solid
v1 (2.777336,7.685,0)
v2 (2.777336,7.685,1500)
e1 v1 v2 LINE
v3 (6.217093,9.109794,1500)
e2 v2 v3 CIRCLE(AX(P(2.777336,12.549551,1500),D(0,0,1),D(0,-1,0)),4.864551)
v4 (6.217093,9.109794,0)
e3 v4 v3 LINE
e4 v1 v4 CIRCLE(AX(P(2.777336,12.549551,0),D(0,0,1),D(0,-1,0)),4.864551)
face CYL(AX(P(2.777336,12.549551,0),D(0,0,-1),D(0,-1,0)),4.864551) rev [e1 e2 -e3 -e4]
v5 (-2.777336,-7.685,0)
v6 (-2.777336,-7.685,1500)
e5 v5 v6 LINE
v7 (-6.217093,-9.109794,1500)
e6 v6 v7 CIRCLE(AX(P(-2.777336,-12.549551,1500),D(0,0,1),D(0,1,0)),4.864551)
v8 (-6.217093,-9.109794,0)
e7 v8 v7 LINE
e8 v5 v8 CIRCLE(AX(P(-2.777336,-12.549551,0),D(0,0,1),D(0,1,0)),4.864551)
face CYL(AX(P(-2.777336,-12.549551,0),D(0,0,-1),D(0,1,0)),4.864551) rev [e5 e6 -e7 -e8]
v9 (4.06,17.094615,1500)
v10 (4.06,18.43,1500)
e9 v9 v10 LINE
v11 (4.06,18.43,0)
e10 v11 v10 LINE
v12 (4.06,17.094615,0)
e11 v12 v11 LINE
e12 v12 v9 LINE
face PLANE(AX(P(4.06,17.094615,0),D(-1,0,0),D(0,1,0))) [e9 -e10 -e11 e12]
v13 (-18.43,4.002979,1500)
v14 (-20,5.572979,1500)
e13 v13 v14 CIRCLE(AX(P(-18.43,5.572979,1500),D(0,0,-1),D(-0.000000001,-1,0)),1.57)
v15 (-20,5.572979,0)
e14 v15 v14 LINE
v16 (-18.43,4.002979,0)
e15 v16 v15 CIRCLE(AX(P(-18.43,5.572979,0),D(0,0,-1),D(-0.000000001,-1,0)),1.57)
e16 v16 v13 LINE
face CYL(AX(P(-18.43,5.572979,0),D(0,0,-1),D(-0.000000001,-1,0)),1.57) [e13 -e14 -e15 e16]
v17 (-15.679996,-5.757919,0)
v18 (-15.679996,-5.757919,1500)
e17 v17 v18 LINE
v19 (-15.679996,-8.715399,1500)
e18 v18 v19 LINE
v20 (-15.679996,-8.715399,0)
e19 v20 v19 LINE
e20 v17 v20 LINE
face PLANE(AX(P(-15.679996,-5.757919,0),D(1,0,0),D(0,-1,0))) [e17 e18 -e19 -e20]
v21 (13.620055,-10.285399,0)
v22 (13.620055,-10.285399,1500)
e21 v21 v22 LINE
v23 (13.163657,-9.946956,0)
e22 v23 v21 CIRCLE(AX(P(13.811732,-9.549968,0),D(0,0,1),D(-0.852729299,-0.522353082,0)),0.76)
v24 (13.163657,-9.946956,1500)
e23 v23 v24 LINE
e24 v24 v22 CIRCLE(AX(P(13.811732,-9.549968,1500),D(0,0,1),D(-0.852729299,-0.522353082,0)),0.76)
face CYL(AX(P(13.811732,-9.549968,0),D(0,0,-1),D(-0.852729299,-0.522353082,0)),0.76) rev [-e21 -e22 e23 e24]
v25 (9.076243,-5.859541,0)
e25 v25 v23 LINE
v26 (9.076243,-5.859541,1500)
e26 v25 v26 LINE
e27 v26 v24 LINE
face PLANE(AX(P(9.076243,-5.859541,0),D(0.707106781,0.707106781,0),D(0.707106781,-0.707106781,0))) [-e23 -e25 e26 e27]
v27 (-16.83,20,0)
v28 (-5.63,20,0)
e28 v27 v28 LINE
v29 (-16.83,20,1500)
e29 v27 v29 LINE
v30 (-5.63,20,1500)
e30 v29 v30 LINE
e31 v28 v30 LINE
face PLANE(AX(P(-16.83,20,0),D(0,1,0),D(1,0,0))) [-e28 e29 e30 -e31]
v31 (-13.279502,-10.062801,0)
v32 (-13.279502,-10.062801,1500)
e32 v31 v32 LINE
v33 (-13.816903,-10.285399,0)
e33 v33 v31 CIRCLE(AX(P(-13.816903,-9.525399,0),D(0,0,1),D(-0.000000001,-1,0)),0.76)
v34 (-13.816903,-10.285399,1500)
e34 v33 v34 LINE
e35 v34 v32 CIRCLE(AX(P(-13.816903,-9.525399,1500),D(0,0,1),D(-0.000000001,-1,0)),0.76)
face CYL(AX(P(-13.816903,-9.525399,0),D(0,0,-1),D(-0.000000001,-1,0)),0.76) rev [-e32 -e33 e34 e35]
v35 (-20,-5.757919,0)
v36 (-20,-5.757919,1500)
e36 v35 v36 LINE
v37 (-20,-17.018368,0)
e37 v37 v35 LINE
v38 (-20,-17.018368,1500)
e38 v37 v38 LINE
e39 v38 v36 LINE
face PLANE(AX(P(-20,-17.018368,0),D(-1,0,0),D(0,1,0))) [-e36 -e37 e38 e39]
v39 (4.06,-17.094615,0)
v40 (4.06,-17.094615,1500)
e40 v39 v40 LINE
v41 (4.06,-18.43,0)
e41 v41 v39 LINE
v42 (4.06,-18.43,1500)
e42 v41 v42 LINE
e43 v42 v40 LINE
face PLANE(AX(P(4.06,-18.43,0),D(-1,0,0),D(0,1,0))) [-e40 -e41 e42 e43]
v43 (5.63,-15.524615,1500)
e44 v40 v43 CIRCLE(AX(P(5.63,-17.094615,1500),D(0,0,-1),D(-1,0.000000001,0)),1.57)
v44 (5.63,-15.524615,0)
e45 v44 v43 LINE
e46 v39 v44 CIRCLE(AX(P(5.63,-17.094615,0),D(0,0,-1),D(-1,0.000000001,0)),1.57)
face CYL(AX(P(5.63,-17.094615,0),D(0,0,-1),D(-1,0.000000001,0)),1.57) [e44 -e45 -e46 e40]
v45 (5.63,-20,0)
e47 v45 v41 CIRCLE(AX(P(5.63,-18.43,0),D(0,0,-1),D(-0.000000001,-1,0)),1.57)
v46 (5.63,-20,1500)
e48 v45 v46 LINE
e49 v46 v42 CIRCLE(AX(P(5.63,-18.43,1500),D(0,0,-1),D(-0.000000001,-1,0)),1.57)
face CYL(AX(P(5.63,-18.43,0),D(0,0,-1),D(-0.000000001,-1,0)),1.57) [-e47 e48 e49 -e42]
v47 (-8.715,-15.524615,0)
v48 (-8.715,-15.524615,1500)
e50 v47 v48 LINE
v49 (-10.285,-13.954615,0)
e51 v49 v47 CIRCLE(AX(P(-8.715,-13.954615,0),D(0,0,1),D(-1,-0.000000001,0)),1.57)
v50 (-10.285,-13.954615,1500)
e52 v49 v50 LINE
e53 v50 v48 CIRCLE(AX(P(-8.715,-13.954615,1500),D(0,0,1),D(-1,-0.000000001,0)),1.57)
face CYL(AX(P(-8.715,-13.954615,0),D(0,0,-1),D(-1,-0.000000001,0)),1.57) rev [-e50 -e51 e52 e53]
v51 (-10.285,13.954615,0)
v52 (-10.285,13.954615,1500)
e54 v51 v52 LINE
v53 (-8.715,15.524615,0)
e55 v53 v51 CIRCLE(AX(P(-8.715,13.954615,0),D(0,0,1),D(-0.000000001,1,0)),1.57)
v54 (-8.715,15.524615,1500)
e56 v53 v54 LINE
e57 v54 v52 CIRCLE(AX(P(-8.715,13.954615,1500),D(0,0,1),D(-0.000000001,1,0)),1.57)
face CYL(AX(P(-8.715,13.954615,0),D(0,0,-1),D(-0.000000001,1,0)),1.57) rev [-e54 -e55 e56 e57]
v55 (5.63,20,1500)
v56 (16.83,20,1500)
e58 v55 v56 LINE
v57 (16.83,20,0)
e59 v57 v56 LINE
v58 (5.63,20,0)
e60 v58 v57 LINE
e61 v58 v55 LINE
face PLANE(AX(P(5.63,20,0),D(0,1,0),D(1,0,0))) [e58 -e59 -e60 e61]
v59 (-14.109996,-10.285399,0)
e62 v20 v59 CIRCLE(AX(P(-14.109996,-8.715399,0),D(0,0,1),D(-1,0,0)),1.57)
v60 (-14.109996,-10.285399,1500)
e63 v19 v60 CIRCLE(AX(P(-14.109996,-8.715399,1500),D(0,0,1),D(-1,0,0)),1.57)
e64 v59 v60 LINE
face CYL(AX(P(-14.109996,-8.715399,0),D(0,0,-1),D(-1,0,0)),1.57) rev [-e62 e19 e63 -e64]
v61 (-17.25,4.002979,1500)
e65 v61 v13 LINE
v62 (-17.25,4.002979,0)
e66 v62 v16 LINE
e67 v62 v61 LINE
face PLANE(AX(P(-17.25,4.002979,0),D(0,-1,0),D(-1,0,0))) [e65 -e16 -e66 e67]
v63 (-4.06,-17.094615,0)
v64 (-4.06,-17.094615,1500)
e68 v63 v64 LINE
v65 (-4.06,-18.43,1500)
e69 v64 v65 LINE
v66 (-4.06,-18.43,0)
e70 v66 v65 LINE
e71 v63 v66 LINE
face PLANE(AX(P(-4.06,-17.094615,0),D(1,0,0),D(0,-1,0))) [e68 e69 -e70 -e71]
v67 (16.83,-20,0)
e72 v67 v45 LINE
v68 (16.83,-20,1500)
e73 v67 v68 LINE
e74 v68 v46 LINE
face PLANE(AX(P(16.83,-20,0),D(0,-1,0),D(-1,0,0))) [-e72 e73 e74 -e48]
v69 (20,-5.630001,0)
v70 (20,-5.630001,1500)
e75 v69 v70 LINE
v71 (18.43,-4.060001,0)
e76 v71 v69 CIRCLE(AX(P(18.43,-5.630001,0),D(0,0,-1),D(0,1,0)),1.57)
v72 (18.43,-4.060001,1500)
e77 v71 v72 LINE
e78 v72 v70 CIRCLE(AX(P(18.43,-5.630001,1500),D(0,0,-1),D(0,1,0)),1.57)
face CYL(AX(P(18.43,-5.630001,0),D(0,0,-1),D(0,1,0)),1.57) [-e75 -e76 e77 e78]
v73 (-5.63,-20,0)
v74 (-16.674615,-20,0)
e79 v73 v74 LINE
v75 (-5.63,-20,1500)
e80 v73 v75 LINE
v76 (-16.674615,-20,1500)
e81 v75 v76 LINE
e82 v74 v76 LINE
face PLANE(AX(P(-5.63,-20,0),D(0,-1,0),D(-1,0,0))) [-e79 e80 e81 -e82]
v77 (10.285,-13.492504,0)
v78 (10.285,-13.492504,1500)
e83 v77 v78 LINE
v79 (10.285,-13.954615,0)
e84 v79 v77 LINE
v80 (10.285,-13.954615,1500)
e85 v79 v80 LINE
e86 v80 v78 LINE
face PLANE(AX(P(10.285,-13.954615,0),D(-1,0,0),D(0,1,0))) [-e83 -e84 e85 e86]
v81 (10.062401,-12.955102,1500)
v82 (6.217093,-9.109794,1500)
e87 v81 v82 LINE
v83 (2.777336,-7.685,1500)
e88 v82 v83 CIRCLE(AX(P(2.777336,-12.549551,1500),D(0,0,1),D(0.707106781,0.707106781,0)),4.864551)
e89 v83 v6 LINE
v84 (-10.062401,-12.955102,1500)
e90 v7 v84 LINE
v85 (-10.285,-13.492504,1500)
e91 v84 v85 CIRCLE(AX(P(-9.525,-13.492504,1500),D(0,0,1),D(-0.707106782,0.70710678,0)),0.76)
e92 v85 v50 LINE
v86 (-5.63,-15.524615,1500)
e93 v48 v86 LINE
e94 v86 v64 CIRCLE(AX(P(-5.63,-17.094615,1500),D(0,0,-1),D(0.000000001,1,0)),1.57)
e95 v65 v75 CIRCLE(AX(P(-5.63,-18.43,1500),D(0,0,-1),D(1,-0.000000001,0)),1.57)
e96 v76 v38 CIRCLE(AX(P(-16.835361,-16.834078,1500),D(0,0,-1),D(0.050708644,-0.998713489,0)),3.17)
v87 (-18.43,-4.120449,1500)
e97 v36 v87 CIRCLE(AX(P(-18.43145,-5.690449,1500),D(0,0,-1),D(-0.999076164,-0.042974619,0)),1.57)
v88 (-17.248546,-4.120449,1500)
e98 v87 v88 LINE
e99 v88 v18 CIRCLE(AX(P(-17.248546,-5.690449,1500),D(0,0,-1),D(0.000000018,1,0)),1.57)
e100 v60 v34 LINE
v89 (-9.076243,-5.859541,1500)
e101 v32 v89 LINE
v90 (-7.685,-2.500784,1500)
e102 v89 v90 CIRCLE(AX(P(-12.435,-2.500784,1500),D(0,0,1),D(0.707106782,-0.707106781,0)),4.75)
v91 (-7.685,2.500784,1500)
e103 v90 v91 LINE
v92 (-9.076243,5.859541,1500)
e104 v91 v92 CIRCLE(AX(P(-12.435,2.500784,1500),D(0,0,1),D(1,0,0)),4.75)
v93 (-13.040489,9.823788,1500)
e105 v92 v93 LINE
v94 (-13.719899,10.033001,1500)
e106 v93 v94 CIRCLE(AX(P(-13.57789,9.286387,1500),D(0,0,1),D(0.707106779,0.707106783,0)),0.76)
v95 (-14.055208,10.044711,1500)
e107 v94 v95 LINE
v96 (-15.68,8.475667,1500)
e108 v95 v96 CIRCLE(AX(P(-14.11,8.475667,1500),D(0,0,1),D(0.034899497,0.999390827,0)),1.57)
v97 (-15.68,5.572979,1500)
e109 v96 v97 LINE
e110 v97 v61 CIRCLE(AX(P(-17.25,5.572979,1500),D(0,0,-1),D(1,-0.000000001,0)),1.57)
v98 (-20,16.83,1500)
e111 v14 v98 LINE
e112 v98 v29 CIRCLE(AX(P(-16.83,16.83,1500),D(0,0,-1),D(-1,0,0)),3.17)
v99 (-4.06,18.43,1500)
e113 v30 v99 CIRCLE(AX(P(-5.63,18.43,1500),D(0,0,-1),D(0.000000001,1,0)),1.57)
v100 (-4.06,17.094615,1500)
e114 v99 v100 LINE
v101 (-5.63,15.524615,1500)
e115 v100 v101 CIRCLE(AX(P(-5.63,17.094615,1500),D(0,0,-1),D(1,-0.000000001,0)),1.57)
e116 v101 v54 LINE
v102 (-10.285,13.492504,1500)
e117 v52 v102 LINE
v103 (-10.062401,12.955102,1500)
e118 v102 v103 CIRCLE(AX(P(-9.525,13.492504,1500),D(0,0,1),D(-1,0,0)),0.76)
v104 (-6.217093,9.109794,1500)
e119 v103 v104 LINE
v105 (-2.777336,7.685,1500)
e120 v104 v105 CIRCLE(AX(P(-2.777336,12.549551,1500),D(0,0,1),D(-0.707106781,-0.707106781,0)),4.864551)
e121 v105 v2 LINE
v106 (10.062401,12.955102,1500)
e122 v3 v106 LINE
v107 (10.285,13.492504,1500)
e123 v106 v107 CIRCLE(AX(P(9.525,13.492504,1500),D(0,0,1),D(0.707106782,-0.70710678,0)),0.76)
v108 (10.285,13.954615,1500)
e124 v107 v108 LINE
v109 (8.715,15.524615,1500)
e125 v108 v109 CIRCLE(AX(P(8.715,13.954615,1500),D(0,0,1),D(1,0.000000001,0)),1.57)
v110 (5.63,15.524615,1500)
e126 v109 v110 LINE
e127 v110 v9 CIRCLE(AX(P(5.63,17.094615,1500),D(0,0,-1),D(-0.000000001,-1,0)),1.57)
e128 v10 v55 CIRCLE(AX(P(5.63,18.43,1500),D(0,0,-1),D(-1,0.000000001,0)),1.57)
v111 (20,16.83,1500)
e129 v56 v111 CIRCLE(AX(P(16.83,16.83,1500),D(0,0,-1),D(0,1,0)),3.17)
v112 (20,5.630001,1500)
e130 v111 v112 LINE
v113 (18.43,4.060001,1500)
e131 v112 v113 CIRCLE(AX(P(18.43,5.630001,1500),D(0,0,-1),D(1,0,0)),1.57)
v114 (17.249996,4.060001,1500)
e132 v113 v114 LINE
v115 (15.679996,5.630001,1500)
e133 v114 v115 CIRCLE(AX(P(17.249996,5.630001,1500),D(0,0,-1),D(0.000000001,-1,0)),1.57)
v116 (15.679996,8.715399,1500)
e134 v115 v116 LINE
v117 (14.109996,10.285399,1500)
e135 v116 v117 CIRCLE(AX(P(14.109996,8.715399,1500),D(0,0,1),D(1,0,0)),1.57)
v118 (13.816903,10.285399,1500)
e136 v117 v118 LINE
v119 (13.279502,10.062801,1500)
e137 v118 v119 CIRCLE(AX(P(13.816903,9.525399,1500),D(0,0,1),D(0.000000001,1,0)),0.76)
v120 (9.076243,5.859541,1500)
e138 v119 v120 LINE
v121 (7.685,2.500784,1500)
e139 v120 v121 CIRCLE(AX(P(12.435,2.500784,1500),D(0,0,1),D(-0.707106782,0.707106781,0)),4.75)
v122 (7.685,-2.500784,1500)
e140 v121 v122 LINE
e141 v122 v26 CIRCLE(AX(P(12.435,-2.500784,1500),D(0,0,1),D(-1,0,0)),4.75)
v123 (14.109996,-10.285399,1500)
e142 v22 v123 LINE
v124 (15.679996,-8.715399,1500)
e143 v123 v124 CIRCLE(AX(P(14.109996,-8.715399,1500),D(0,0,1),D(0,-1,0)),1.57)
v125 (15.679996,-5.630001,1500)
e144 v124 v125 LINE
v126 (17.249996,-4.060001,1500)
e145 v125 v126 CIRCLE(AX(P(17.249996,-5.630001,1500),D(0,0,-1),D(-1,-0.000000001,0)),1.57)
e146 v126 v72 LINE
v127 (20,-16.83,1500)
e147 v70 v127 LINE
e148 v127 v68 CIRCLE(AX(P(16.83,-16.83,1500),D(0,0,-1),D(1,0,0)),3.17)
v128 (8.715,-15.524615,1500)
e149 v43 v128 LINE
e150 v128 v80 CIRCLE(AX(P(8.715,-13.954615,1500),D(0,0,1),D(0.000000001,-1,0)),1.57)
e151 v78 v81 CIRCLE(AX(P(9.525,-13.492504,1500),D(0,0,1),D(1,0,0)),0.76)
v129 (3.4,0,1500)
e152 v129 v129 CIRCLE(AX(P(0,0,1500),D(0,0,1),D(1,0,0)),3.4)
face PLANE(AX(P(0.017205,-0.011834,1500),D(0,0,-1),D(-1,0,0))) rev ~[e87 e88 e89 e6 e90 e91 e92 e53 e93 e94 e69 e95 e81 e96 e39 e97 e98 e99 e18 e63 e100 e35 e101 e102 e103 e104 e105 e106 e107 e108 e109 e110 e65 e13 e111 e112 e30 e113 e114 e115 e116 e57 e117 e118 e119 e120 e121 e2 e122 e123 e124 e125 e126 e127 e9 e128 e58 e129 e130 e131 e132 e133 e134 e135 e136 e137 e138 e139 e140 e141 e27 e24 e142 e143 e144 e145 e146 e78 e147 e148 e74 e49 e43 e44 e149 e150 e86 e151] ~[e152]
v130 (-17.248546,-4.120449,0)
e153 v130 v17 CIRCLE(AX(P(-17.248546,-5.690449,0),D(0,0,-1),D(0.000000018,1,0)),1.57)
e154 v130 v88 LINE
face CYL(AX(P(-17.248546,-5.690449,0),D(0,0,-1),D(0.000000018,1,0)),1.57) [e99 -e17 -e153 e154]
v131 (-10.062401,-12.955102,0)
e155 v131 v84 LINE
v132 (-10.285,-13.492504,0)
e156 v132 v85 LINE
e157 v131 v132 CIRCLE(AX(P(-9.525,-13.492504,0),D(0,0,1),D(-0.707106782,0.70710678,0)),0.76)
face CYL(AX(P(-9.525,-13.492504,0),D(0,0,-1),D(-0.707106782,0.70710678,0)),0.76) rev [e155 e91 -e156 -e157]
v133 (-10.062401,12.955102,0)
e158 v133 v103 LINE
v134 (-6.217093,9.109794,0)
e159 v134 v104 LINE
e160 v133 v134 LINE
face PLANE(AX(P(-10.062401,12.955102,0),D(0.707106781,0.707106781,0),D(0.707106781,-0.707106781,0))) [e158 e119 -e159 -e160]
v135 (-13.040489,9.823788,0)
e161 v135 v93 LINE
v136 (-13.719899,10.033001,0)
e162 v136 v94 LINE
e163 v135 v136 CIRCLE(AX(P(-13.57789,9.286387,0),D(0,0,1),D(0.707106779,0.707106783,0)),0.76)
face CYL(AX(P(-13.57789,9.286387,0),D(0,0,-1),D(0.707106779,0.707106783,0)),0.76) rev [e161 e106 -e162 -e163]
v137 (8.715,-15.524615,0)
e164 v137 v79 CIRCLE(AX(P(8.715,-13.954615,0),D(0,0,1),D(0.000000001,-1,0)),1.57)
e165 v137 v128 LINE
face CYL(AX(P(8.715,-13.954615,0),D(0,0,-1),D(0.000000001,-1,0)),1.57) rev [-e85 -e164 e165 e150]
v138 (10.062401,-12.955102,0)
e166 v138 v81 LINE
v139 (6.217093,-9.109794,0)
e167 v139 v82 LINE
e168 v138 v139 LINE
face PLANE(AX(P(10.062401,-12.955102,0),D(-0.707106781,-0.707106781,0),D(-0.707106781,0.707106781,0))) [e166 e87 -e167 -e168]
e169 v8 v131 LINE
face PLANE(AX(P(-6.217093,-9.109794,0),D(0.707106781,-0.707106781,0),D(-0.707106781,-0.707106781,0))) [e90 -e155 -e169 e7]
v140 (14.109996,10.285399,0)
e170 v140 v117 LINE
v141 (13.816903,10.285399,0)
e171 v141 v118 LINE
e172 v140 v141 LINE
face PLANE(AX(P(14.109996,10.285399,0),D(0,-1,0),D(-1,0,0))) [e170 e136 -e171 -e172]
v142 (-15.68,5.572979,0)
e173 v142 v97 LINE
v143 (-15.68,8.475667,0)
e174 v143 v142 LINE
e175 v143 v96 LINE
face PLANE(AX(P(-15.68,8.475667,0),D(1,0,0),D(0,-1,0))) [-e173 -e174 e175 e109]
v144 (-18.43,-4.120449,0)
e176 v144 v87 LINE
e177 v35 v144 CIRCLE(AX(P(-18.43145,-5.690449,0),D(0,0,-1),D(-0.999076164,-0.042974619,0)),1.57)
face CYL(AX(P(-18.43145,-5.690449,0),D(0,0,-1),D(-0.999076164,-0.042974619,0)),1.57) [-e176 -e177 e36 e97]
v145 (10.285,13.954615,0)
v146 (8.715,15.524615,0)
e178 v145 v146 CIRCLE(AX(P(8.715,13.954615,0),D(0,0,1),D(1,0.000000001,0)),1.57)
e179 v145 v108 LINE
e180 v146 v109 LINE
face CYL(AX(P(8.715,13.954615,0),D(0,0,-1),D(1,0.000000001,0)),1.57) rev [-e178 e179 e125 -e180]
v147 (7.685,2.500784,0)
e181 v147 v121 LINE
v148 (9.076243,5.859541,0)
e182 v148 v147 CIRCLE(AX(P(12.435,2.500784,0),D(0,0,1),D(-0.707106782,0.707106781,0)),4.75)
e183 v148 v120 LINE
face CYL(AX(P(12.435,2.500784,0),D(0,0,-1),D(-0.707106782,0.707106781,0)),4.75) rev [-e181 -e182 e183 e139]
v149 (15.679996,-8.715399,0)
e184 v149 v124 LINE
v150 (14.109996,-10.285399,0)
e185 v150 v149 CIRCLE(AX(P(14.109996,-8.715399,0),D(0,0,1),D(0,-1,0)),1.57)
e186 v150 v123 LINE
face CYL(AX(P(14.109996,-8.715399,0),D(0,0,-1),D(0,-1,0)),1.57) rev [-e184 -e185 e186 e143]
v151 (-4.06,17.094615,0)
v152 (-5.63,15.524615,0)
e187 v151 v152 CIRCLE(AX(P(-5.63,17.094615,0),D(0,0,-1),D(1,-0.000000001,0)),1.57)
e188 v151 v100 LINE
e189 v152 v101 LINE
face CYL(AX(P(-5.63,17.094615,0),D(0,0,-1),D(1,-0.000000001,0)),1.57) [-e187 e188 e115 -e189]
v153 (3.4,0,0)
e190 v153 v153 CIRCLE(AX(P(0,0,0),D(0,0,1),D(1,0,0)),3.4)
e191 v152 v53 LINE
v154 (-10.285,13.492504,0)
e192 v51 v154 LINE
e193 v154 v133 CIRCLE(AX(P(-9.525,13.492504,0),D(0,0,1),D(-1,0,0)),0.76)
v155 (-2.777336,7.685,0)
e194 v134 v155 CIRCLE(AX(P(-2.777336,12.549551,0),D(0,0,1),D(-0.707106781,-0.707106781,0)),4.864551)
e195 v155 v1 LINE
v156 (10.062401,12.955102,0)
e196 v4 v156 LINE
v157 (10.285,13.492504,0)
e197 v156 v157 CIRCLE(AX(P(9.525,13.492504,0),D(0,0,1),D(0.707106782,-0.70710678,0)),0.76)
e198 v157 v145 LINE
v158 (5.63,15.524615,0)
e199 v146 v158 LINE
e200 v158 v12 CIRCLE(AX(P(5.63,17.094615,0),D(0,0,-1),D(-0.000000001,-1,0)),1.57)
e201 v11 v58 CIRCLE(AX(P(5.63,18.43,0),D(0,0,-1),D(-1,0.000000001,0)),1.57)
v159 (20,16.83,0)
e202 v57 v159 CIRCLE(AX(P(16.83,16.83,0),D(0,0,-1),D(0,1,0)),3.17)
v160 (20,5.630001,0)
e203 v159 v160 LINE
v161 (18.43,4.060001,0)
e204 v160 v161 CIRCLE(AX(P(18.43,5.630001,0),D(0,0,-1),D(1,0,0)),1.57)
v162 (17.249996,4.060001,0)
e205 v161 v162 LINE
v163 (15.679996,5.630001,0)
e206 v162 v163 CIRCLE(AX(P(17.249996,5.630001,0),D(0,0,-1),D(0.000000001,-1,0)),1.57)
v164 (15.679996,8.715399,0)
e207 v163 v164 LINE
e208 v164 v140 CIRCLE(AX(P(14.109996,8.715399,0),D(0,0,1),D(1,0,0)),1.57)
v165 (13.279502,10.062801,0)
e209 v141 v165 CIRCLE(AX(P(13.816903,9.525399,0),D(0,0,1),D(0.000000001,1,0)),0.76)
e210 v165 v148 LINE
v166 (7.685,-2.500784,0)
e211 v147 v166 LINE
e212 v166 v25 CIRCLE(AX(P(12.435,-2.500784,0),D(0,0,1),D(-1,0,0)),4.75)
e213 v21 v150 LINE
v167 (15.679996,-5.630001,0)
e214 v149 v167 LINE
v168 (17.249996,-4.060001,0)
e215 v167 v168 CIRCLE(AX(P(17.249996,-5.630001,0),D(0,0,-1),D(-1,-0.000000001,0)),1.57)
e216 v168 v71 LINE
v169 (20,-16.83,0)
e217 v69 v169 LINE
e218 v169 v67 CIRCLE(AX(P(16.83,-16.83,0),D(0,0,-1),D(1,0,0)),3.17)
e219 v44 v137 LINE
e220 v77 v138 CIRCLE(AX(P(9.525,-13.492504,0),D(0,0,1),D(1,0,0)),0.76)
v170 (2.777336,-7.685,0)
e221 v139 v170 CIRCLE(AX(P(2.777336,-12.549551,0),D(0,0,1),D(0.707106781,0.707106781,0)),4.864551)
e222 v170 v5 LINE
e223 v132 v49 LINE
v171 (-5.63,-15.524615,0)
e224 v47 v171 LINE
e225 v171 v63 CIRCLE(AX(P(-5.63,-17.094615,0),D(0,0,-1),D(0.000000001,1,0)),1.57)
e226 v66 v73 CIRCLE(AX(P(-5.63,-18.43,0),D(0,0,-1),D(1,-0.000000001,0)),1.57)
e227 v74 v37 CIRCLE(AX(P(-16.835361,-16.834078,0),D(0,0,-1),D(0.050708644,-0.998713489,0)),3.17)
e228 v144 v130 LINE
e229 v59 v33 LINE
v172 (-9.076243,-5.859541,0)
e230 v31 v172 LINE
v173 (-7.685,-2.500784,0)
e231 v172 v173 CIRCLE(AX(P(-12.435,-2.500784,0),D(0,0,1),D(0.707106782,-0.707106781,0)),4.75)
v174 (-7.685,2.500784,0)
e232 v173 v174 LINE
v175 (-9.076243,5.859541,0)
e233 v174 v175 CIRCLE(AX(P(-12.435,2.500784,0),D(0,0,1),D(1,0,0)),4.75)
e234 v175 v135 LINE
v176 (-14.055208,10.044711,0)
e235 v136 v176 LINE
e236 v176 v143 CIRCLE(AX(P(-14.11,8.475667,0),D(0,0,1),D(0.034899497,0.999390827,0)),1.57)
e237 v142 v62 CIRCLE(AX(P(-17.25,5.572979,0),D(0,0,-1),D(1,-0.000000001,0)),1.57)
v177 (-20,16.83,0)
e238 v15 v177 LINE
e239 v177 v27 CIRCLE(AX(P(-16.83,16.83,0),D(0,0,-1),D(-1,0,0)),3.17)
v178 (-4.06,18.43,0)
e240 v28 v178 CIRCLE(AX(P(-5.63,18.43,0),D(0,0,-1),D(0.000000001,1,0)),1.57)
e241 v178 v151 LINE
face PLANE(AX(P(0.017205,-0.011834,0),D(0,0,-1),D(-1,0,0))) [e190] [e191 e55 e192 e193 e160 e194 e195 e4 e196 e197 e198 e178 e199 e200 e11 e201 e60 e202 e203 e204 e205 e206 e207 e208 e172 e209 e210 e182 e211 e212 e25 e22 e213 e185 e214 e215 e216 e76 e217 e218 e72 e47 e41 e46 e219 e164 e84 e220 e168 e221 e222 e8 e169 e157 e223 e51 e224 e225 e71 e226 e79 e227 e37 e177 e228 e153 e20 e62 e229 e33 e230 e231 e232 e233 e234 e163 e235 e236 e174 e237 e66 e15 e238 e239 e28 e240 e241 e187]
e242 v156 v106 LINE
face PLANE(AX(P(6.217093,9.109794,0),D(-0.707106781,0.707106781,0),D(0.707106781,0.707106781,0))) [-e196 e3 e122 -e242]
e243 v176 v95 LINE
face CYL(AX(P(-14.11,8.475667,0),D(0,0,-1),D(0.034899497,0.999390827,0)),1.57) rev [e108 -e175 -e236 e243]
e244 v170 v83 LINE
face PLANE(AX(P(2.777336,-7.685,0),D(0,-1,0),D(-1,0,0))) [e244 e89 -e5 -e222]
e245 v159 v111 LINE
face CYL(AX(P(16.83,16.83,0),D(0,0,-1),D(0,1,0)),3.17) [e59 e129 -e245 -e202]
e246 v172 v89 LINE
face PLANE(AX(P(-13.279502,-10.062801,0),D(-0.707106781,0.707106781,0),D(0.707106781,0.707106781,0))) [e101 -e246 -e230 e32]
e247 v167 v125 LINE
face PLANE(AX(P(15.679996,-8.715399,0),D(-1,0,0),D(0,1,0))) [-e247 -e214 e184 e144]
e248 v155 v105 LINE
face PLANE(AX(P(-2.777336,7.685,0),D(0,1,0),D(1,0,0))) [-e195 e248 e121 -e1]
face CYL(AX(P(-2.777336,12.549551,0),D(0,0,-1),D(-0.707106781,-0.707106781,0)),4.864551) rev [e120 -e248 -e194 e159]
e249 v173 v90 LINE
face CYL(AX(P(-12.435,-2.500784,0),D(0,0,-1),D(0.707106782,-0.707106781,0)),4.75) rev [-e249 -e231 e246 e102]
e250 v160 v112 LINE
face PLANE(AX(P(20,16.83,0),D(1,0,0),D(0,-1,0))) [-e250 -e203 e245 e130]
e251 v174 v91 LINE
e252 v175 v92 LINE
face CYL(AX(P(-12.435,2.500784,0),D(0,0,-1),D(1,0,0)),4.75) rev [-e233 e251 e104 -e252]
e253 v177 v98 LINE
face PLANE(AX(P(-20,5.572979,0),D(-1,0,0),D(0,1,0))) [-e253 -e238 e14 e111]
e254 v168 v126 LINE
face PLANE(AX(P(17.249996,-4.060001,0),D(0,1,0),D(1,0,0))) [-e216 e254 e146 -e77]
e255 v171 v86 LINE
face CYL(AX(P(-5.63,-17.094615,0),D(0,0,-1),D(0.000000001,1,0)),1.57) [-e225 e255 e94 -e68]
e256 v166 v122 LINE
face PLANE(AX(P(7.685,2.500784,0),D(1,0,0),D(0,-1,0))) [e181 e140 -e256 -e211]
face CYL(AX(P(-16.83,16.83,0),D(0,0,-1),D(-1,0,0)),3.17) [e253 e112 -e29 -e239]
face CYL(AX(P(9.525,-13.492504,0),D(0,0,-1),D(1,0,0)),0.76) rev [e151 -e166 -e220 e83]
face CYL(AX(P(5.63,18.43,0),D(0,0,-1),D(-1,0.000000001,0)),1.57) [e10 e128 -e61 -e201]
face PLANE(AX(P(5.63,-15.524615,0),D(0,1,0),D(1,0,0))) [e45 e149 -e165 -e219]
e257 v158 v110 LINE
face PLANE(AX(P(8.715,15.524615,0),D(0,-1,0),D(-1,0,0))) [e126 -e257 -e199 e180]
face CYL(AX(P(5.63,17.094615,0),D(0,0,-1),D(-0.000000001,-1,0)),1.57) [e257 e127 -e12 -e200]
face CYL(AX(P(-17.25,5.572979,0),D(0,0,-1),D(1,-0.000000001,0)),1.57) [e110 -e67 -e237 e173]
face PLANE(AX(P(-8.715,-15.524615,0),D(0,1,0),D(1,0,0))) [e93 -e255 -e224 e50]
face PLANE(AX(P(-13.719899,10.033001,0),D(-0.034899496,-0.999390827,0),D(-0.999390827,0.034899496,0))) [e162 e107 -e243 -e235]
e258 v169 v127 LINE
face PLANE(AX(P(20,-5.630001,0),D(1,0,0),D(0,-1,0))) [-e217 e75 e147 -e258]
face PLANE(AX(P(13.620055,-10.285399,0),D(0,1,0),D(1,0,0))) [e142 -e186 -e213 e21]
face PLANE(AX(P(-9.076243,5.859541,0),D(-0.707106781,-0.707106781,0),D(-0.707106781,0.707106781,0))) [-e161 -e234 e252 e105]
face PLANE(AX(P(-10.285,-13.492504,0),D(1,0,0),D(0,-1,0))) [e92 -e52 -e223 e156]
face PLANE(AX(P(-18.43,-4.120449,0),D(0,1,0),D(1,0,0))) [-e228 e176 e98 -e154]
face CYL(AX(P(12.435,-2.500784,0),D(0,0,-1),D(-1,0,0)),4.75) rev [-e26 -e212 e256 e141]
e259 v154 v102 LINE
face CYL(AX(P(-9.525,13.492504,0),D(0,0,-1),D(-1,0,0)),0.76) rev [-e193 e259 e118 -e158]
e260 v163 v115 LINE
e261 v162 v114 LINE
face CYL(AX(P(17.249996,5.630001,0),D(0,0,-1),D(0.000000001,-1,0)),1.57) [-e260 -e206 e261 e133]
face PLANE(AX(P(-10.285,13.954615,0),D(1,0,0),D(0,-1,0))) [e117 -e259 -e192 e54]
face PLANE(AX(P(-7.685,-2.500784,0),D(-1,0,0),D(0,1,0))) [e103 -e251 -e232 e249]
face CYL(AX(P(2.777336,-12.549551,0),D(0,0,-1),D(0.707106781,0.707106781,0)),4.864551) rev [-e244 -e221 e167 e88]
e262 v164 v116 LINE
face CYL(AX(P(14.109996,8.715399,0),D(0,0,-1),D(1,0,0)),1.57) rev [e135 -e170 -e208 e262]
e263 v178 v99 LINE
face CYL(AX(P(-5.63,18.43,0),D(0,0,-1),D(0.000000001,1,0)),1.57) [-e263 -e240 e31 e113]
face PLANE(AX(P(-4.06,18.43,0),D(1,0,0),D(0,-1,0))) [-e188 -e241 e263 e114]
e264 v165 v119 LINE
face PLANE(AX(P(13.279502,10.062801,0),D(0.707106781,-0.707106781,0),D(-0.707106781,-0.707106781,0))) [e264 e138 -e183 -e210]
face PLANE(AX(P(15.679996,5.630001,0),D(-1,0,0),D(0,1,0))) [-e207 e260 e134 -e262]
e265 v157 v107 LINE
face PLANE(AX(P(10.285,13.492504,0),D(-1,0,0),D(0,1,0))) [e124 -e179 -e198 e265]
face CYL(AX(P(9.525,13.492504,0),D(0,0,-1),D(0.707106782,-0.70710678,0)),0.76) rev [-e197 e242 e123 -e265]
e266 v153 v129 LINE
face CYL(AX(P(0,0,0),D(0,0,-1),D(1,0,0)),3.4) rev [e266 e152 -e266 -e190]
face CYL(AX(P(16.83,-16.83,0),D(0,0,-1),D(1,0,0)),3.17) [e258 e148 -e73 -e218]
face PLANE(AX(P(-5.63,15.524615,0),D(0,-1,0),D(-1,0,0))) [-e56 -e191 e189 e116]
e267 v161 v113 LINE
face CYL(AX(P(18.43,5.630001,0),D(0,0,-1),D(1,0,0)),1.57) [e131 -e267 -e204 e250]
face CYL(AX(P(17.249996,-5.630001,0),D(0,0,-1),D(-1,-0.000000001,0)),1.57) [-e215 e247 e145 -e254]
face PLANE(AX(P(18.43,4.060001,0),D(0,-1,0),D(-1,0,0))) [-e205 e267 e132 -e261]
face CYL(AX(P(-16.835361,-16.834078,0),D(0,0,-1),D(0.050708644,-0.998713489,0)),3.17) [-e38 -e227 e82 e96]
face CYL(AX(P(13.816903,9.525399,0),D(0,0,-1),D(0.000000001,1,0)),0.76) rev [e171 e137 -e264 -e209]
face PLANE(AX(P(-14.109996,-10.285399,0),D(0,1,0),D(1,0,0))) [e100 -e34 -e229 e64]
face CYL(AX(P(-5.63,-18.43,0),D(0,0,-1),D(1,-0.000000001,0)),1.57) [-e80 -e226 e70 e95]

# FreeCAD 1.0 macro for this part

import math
import FreeCAD as App
import Part
import Sketcher
from FreeCAD import Vector
Q = App.Units.Quantity

doc = App.newDocument("Part")
body = doc.addObject("PartDesign::Body", "Body")

# Sketch on XY plane
sketch1 = doc.addObject("Sketcher::SketchObject", "Sketch")
body.addObject(sketch1)
sketch1.AttachmentSupport = (doc.XY_Plane, [""])
sketch1.MapMode = "FlatFace"
sketch1.addGeometry(Part.LineSegment(Vector(-5.63, -15.524615, 0), Vector(-8.715, -15.524615, 0)), False)
sketch1.addGeometry(Part.ArcOfCircle(Part.Circle(Vector(-8.715, -13.954615, 0), Vector(0, 0, 1), 1.57), math.radians(-180), math.radians(-90)), False)
sketch1.addGeometry(Part.LineSegment(Vector(-10.285, -13.954615, 0), Vector(-10.285, -13.492504, 0)), False)
sketch1.addGeometry(Part.ArcOfCircle(Part.Circle(Vector(-9.525, -13.492504, 0), Vector(0, 0, 1), 0.76), math.radians(135), math.radians(180)), False)
sketch1.addGeometry(Part.LineSegment(Vector(-10.062401, -12.955102, 0), Vector(-6.217093, -9.109794, 0)), False)
sketch1.addGeometry(Part.ArcOfCircle(Part.Circle(Vector(-2.777336, -12.549551, 0), Vector(0, 0, 1), 4.864551), math.radians(90), math.radians(135)), False)
sketch1.addGeometry(Part.LineSegment(Vector(-2.777336, -7.685, 0), Vector(2.777336, -7.685, 0)), False)
sketch1.addGeometry(Part.ArcOfCircle(Part.Circle(Vector(2.777336, -12.549551, 0), Vector(0, 0, 1), 4.864551), math.radians(45), math.radians(90)), False)
sketch1.addGeometry(Part.LineSegment(Vector(6.217093, -9.109794, 0), Vector(10.062401, -12.955102, 0)), False)
sketch1.addGeometry(Part.ArcOfCircle(Part.Circle(Vector(9.525, -13.492504, 0), Vector(0, 0, 1), 0.76), math.radians(0), math.radians(45)), False)
sketch1.addGeometry(Part.LineSegment(Vector(10.285, -13.492504, 0), Vector(10.285, -13.954615, 0)), False)
sketch1.addGeometry(Part.ArcOfCircle(Part.Circle(Vector(8.715, -13.954615, 0), Vector(0, 0, 1), 1.57), math.radians(-90), math.radians(0)), False)
sketch1.addGeometry(Part.LineSegment(Vector(8.715, -15.524615, 0), Vector(5.63, -15.524615, 0)), False)
sketch1.addGeometry(Part.ArcOfCircle(Part.Circle(Vector(5.63, -17.094615, 0), Vector(0, 0, 1), 1.57), math.radians(90), math.radians(180)), False)
sketch1.addGeometry(Part.LineSegment(Vector(4.06, -17.094615, 0), Vector(4.06, -18.43, 0)), False)
sketch1.addGeometry(Part.ArcOfCircle(Part.Circle(Vector(5.63, -18.43, 0), Vector(0, 0, 1), 1.57), math.radians(-180), math.radians(-90)), False)
sketch1.addGeometry(Part.LineSegment(Vector(5.63, -20, 0), Vector(16.83, -20, 0)), False)
sketch1.addGeometry(Part.ArcOfCircle(Part.Circle(Vector(16.83, -16.83, 0), Vector(0, 0, 1), 3.17), math.radians(-90), math.radians(0)), False)
sketch1.addGeometry(Part.LineSegment(Vector(20, -16.83, 0), Vector(20, -5.630001, 0)), False)
sketch1.addGeometry(Part.ArcOfCircle(Part.Circle(Vector(18.43, -5.630001, 0), Vector(0, 0, 1), 1.57), math.radians(0), math.radians(90)), False)
sketch1.addGeometry(Part.LineSegment(Vector(18.43, -4.060001, 0), Vector(17.249996, -4.060001, 0)), False)
sketch1.addGeometry(Part.ArcOfCircle(Part.Circle(Vector(17.249996, -5.630001, 0), Vector(0, 0, 1), 1.57), math.radians(90), math.radians(180)), False)
sketch1.addGeometry(Part.LineSegment(Vector(15.679996, -5.630001, 0), Vector(15.679996, -8.715399, 0)), False)
sketch1.addGeometry(Part.ArcOfCircle(Part.Circle(Vector(14.109996, -8.715399, 0), Vector(0, 0, 1), 1.57), math.radians(-90), math.radians(0)), False)
sketch1.addGeometry(Part.LineSegment(Vector(14.109996, -10.285399, 0), Vector(13.620055, -10.285399, 0)), False)
sketch1.addGeometry(Part.ArcOfCircle(Part.Circle(Vector(13.811732, -9.549968, 0), Vector(0, 0, 1), 0.76), math.radians(-148.509776), math.radians(-104.608114)), False)
sketch1.addGeometry(Part.LineSegment(Vector(13.163657, -9.946956, 0), Vector(9.076243, -5.859541, 0)), False)
sketch1.addGeometry(Part.ArcOfCircle(Part.Circle(Vector(12.435, -2.500784, 0), Vector(0, 0, 1), 4.75), math.radians(-180), math.radians(-135)), False)
sketch1.addGeometry(Part.LineSegment(Vector(7.685, -2.500784, 0), Vector(7.685, 2.500784, 0)), False)
sketch1.addGeometry(Part.ArcOfCircle(Part.Circle(Vector(12.435, 2.500784, 0), Vector(0, 0, 1), 4.75), math.radians(135), math.radians(180)), False)
sketch1.addGeometry(Part.LineSegment(Vector(9.076243, 5.859541, 0), Vector(13.279502, 10.062801, 0)), False)
sketch1.addGeometry(Part.ArcOfCircle(Part.Circle(Vector(13.816903, 9.525399, 0), Vector(0, 0, 1), 0.76), math.radians(90), math.radians(135)), False)
sketch1.addGeometry(Part.LineSegment(Vector(13.816903, 10.285399, 0), Vector(14.109996, 10.285399, 0)), False)
sketch1.addGeometry(Part.ArcOfCircle(Part.Circle(Vector(14.109996, 8.715399, 0), Vector(0, 0, 1), 1.57), math.radians(0), math.radians(90)), False)
sketch1.addGeometry(Part.LineSegment(Vector(15.679996, 8.715399, 0), Vector(15.679996, 5.630001, 0)), False)
sketch1.addGeometry(Part.ArcOfCircle(Part.Circle(Vector(17.249996, 5.630001, 0), Vector(0, 0, 1), 1.57), math.radians(180), math.radians(270)), False)
sketch1.addGeometry(Part.LineSegment(Vector(17.249996, 4.060001, 0), Vector(18.43, 4.060001, 0)), False)
sketch1.addGeometry(Part.ArcOfCircle(Part.Circle(Vector(18.43, 5.630001, 0), Vector(0, 0, 1), 1.57), math.radians(-90), math.radians(0)), False)
sketch1.addGeometry(Part.LineSegment(Vector(20, 5.630001, 0), Vector(20, 16.83, 0)), False)
sketch1.addGeometry(Part.ArcOfCircle(Part.Circle(Vector(16.83, 16.83, 0), Vector(0, 0, 1), 3.17), math.radians(0), math.radians(90)), False)
sketch1.addGeometry(Part.LineSegment(Vector(16.83, 20, 0), Vector(5.63, 20, 0)), False)
sketch1.addGeometry(Part.ArcOfCircle(Part.Circle(Vector(5.63, 18.43, 0), Vector(0, 0, 1), 1.57), math.radians(90), math.radians(180)), False)
sketch1.addGeometry(Part.LineSegment(Vector(4.06, 18.43, 0), Vector(4.06, 17.094615, 0)), False)
sketch1.addGeometry(Part.ArcOfCircle(Part.Circle(Vector(5.63, 17.094615, 0), Vector(0, 0, 1), 1.57), math.radians(-180), math.radians(-90)), False)
sketch1.addGeometry(Part.LineSegment(Vector(5.63, 15.524615, 0), Vector(8.715, 15.524615, 0)), False)
sketch1.addGeometry(Part.ArcOfCircle(Part.Circle(Vector(8.715, 13.954615, 0), Vector(0, 0, 1), 1.57), math.radians(0), math.radians(90)), False)
sketch1.addGeometry(Part.LineSegment(Vector(10.285, 13.954615, 0), Vector(10.285, 13.492504, 0)), False)
sketch1.addGeometry(Part.ArcOfCircle(Part.Circle(Vector(9.525, 13.492504, 0), Vector(0, 0, 1), 0.76), math.radians(-45), math.radians(0)), False)
sketch1.addGeometry(Part.LineSegment(Vector(10.062401, 12.955102, 0), Vector(6.217093, 9.109794, 0)), False)
sketch1.addGeometry(Part.ArcOfCircle(Part.Circle(Vector(2.777336, 12.549551, 0), Vector(0, 0, 1), 4.864551), math.radians(-90), math.radians(-45)), False)
sketch1.addGeometry(Part.LineSegment(Vector(2.777336, 7.685, 0), Vector(-2.777336, 7.685, 0)), False)
sketch1.addGeometry(Part.ArcOfCircle(Part.Circle(Vector(-2.777336, 12.549551, 0), Vector(0, 0, 1), 4.864551), math.radians(-135), math.radians(-90)), False)
sketch1.addGeometry(Part.LineSegment(Vector(-6.217093, 9.109794, 0), Vector(-10.062401, 12.955102, 0)), False)
sketch1.addGeometry(Part.ArcOfCircle(Part.Circle(Vector(-9.525, 13.492504, 0), Vector(0, 0, 1), 0.76), math.radians(180), math.radians(225)), False)
sketch1.addGeometry(Part.LineSegment(Vector(-10.285, 13.492504, 0), Vector(-10.285, 13.954615, 0)), False)
sketch1.addGeometry(Part.ArcOfCircle(Part.Circle(Vector(-8.715, 13.954615, 0), Vector(0, 0, 1), 1.57), math.radians(90), math.radians(180)), False)
sketch1.addGeometry(Part.LineSegment(Vector(-8.715, 15.524615, 0), Vector(-5.63, 15.524615, 0)), False)
sketch1.addGeometry(Part.ArcOfCircle(Part.Circle(Vector(-5.63, 17.094615, 0), Vector(0, 0, 1), 1.57), math.radians(-90), math.radians(0)), False)
sketch1.addGeometry(Part.LineSegment(Vector(-4.06, 17.094615, 0), Vector(-4.06, 18.43, 0)), False)
sketch1.addGeometry(Part.ArcOfCircle(Part.Circle(Vector(-5.63, 18.43, 0), Vector(0, 0, 1), 1.57), math.radians(0), math.radians(90)), False)
sketch1.addGeometry(Part.LineSegment(Vector(-5.63, 20, 0), Vector(-16.83, 20, 0)), False)
sketch1.addGeometry(Part.ArcOfCircle(Part.Circle(Vector(-16.83, 16.83, 0), Vector(0, 0, 1), 3.17), math.radians(90), math.radians(180)), False)
sketch1.addGeometry(Part.LineSegment(Vector(-20, 16.83, 0), Vector(-20, 5.572979, 0)), False)
sketch1.addGeometry(Part.ArcOfCircle(Part.Circle(Vector(-18.43, 5.572979, 0), Vector(0, 0, 1), 1.57), math.radians(-180), math.radians(-90)), False)
sketch1.addGeometry(Part.LineSegment(Vector(-18.43, 4.002979, 0), Vector(-17.25, 4.002979, 0)), False)
sketch1.addGeometry(Part.ArcOfCircle(Part.Circle(Vector(-17.25, 5.572979, 0), Vector(0, 0, 1), 1.57), math.radians(-90), math.radians(0)), False)
sketch1.addGeometry(Part.LineSegment(Vector(-15.68, 5.572979, 0), Vector(-15.68, 8.475667, 0)), False)
sketch1.addGeometry(Part.ArcOfCircle(Part.Circle(Vector(-14.11, 8.475667, 0), Vector(0, 0, 1), 1.57), math.radians(88), math.radians(180)), False)
sketch1.addGeometry(Part.LineSegment(Vector(-14.055208, 10.044711, 0), Vector(-13.719899, 10.033001, 0)), False)
sketch1.addGeometry(Part.ArcOfCircle(Part.Circle(Vector(-13.57789, 9.286387, 0), Vector(0, 0, 1), 0.76), math.radians(45), math.radians(100.769233)), False)
sketch1.addGeometry(Part.LineSegment(Vector(-13.040489, 9.823788, 0), Vector(-9.076243, 5.859541, 0)), False)
sketch1.addGeometry(Part.ArcOfCircle(Part.Circle(Vector(-12.435, 2.500784, 0), Vector(0, 0, 1), 4.75), math.radians(0), math.radians(45)), False)
sketch1.addGeometry(Part.LineSegment(Vector(-7.685, 2.500784, 0), Vector(-7.685, -2.500784, 0)), False)
sketch1.addGeometry(Part.ArcOfCircle(Part.Circle(Vector(-12.435, -2.500784, 0), Vector(0, 0, 1), 4.75), math.radians(-45), math.radians(0)), False)
sketch1.addGeometry(Part.LineSegment(Vector(-9.076243, -5.859541, 0), Vector(-13.279502, -10.062801, 0)), False)
sketch1.addGeometry(Part.ArcOfCircle(Part.Circle(Vector(-13.816903, -9.525399, 0), Vector(0, 0, 1), 0.76), math.radians(-90), math.radians(-45)), False)
sketch1.addGeometry(Part.LineSegment(Vector(-13.816903, -10.285399, 0), Vector(-14.109996, -10.285399, 0)), False)
sketch1.addGeometry(Part.ArcOfCircle(Part.Circle(Vector(-14.109996, -8.715399, 0), Vector(0, 0, 1), 1.57), math.radians(180), math.radians(270)), False)
sketch1.addGeometry(Part.LineSegment(Vector(-15.679996, -8.715399, 0), Vector(-15.679996, -5.757919, 0)), False)
sketch1.addGeometry(Part.ArcOfCircle(Part.Circle(Vector(-17.248546, -5.690449, 0), Vector(0, 0, 1), 1.57), math.radians(-2.463018), math.radians(89.999999)), False)
sketch1.addGeometry(Part.LineSegment(Vector(-17.248546, -4.120449, 0), Vector(-18.43, -4.120449, 0)), False)
sketch1.addGeometry(Part.ArcOfCircle(Part.Circle(Vector(-18.43145, -5.690449, 0), Vector(0, 0, 1), 1.57), math.radians(89.947068), math.radians(182.463023)), False)
sketch1.addGeometry(Part.LineSegment(Vector(-20, -5.757919, 0), Vector(-20, -17.018368, 0)), False)
sketch1.addGeometry(Part.ArcOfCircle(Part.Circle(Vector(-16.835361, -16.834078, 0), Vector(0, 0, 1), 3.17), math.radians(-176.667196), math.radians(-87.093362)), False)
sketch1.addGeometry(Part.LineSegment(Vector(-16.674615, -20, 0), Vector(-5.63, -20, 0)), False)
sketch1.addGeometry(Part.ArcOfCircle(Part.Circle(Vector(-5.63, -18.43, 0), Vector(0, 0, 1), 1.57), math.radians(-90), math.radians(0)), False)
sketch1.addGeometry(Part.LineSegment(Vector(-4.06, -18.43, 0), Vector(-4.06, -17.094615, 0)), False)
sketch1.addGeometry(Part.ArcOfCircle(Part.Circle(Vector(-5.63, -17.094615, 0), Vector(0, 0, 1), 1.57), math.radians(0), math.radians(90)), False)
sketch1.addGeometry(Part.Circle(Vector(0, 0, 0), Vector(0, 0, 1), 3.4), False)
sketch1.addConstraint(Sketcher.Constraint("Tangent", 0, 2, 1, 2))
sketch1.addConstraint(Sketcher.Constraint("Tangent", 1, 1, 2, 1))
sketch1.addConstraint(Sketcher.Constraint("Tangent", 2, 2, 3, 2))
sketch1.addConstraint(Sketcher.Constraint("Tangent", 3, 1, 4, 1))
sketch1.addConstraint(Sketcher.Constraint("Tangent", 4, 2, 5, 2))
sketch1.addConstraint(Sketcher.Constraint("Tangent", 5, 1, 6, 1))
sketch1.addConstraint(Sketcher.Constraint("Tangent", 6, 2, 7, 2))
sketch1.addConstraint(Sketcher.Constraint("Tangent", 7, 1, 8, 1))
sketch1.addConstraint(Sketcher.Constraint("Tangent", 8, 2, 9, 2))
sketch1.addConstraint(Sketcher.Constraint("Tangent", 9, 1, 10, 1))
sketch1.addConstraint(Sketcher.Constraint("Tangent", 10, 2, 11, 2))
sketch1.addConstraint(Sketcher.Constraint("Tangent", 11, 1, 12, 1))
sketch1.addConstraint(Sketcher.Constraint("Tangent", 12, 2, 13, 1))
sketch1.addConstraint(Sketcher.Constraint("Tangent", 13, 2, 14, 1))
sketch1.addConstraint(Sketcher.Constraint("Tangent", 14, 2, 15, 1))
sketch1.addConstraint(Sketcher.Constraint("Tangent", 15, 2, 16, 1))
sketch1.addConstraint(Sketcher.Constraint("Tangent", 16, 2, 17, 1))
sketch1.addConstraint(Sketcher.Constraint("Tangent", 17, 2, 18, 1))
sketch1.addConstraint(Sketcher.Constraint("Tangent", 18, 2, 19, 1))
sketch1.addConstraint(Sketcher.Constraint("Tangent", 19, 2, 20, 1))
sketch1.addConstraint(Sketcher.Constraint("Tangent", 20, 2, 21, 1))
sketch1.addConstraint(Sketcher.Constraint("Tangent", 21, 2, 22, 1))
sketch1.addConstraint(Sketcher.Constraint("Tangent", 22, 2, 23, 2))
sketch1.addConstraint(Sketcher.Constraint("Tangent", 23, 1, 24, 1))
sketch1.addConstraint(Sketcher.Constraint("Coincident", 24, 2, 25, 2))
sketch1.addConstraint(Sketcher.Constraint("Coincident", 25, 1, 26, 1))
sketch1.addConstraint(Sketcher.Constraint("Tangent", 26, 2, 27, 2))
sketch1.addConstraint(Sketcher.Constraint("Tangent", 27, 1, 28, 1))
sketch1.addConstraint(Sketcher.Constraint("Tangent", 28, 2, 29, 2))
sketch1.addConstraint(Sketcher.Constraint("Tangent", 29, 1, 30, 1))
sketch1.addConstraint(Sketcher.Constraint("Tangent", 30, 2, 31, 2))
sketch1.addConstraint(Sketcher.Constraint("Tangent", 31, 1, 32, 1))
sketch1.addConstraint(Sketcher.Constraint("Tangent", 32, 2, 33, 2))
sketch1.addConstraint(Sketcher.Constraint("Tangent", 33, 1, 34, 1))
sketch1.addConstraint(Sketcher.Constraint("Tangent", 34, 2, 35, 1))
sketch1.addConstraint(Sketcher.Constraint("Tangent", 35, 2, 36, 1))
sketch1.addConstraint(Sketcher.Constraint("Tangent", 36, 2, 37, 1))
sketch1.addConstraint(Sketcher.Constraint("Tangent", 37, 2, 38, 1))
sketch1.addConstraint(Sketcher.Constraint("Tangent", 38, 2, 39, 1))
sketch1.addConstraint(Sketcher.Constraint("Tangent", 39, 2, 40, 1))
sketch1.addConstraint(Sketcher.Constraint("Tangent", 40, 2, 41, 1))
sketch1.addConstraint(Sketcher.Constraint("Tangent", 41, 2, 42, 1))
sketch1.addConstraint(Sketcher.Constraint("Tangent", 42, 2, 43, 1))
sketch1.addConstraint(Sketcher.Constraint("Tangent", 43, 2, 44, 1))
sketch1.addConstraint(Sketcher.Constraint("Tangent", 44, 2, 45, 2))
sketch1.addConstraint(Sketcher.Constraint("Tangent", 45, 1, 46, 1))
sketch1.addConstraint(Sketcher.Constraint("Tangent", 46, 2, 47, 2))
sketch1.addConstraint(Sketcher.Constraint("Tangent", 47, 1, 48, 1))
sketch1.addConstraint(Sketcher.Constraint("Tangent", 48, 2, 49, 2))
sketch1.addConstraint(Sketcher.Constraint("Tangent", 49, 1, 50, 1))
sketch1.addConstraint(Sketcher.Constraint("Tangent", 50, 2, 51, 2))
sketch1.addConstraint(Sketcher.Constraint("Tangent", 51, 1, 52, 1))
sketch1.addConstraint(Sketcher.Constraint("Tangent", 52, 2, 53, 2))
sketch1.addConstraint(Sketcher.Constraint("Tangent", 53, 1, 54, 1))
sketch1.addConstraint(Sketcher.Constraint("Tangent", 54, 2, 55, 2))
sketch1.addConstraint(Sketcher.Constraint("Tangent", 55, 1, 56, 1))
sketch1.addConstraint(Sketcher.Constraint("Tangent", 56, 2, 57, 1))
sketch1.addConstraint(Sketcher.Constraint("Tangent", 57, 2, 58, 1))
sketch1.addConstraint(Sketcher.Constraint("Tangent", 58, 2, 59, 1))
sketch1.addConstraint(Sketcher.Constraint("Tangent", 59, 2, 60, 1))
sketch1.addConstraint(Sketcher.Constraint("Tangent", 60, 2, 61, 1))
sketch1.addConstraint(Sketcher.Constraint("Tangent", 61, 2, 62, 1))
sketch1.addConstraint(Sketcher.Constraint("Tangent", 62, 2, 63, 1))
sketch1.addConstraint(Sketcher.Constraint("Tangent", 63, 2, 64, 1))
sketch1.addConstraint(Sketcher.Constraint("Tangent", 64, 2, 65, 1))
sketch1.addConstraint(Sketcher.Constraint("Tangent", 65, 2, 66, 1))
sketch1.addConstraint(Sketcher.Constraint("Tangent", 66, 2, 67, 2))
sketch1.addConstraint(Sketcher.Constraint("Tangent", 67, 1, 68, 1))
sketch1.addConstraint(Sketcher.Constraint("Coincident", 68, 2, 69, 2))
sketch1.addConstraint(Sketcher.Constraint("Tangent", 69, 1, 70, 1))
sketch1.addConstraint(Sketcher.Constraint("Tangent", 70, 2, 71, 2))
sketch1.addConstraint(Sketcher.Constraint("Tangent", 71, 1, 72, 1))
sketch1.addConstraint(Sketcher.Constraint("Tangent", 72, 2, 73, 2))
sketch1.addConstraint(Sketcher.Constraint("Tangent", 73, 1, 74, 1))
sketch1.addConstraint(Sketcher.Constraint("Tangent", 74, 2, 75, 2))
sketch1.addConstraint(Sketcher.Constraint("Tangent", 75, 1, 76, 1))
sketch1.addConstraint(Sketcher.Constraint("Tangent", 76, 2, 77, 2))
sketch1.addConstraint(Sketcher.Constraint("Tangent", 77, 1, 78, 1))
sketch1.addConstraint(Sketcher.Constraint("Coincident", 78, 2, 79, 1))
sketch1.addConstraint(Sketcher.Constraint("Tangent", 79, 2, 80, 1))
sketch1.addConstraint(Sketcher.Constraint("Coincident", 80, 2, 81, 1))
sketch1.addConstraint(Sketcher.Constraint("Coincident", 81, 2, 82, 1))
sketch1.addConstraint(Sketcher.Constraint("Coincident", 82, 2, 83, 1))
sketch1.addConstraint(Sketcher.Constraint("Coincident", 83, 2, 84, 1))
sketch1.addConstraint(Sketcher.Constraint("Tangent", 84, 2, 85, 1))
sketch1.addConstraint(Sketcher.Constraint("Tangent", 85, 2, 86, 1))
sketch1.addConstraint(Sketcher.Constraint("Tangent", 86, 2, 87, 1))
sketch1.addConstraint(Sketcher.Constraint("Tangent", 87, 2, 0, 1))
sketch1.addConstraint(Sketcher.Constraint("Horizontal", 0))
sketch1.addConstraint(Sketcher.Constraint("Vertical", 2))
sketch1.addConstraint(Sketcher.Constraint("Horizontal", 6))
sketch1.addConstraint(Sketcher.Constraint("Vertical", 10))
sketch1.addConstraint(Sketcher.Constraint("Horizontal", 12))
sketch1.addConstraint(Sketcher.Constraint("Vertical", 14))
sketch1.addConstraint(Sketcher.Constraint("Horizontal", 16))
sketch1.addConstraint(Sketcher.Constraint("Vertical", 18))
sketch1.addConstraint(Sketcher.Constraint("Horizontal", 20))
sketch1.addConstraint(Sketcher.Constraint("Vertical", 22))
sketch1.addConstraint(Sketcher.Constraint("Horizontal", 24))
sketch1.addConstraint(Sketcher.Constraint("Vertical", 28))
sketch1.addConstraint(Sketcher.Constraint("Horizontal", 32))
sketch1.addConstraint(Sketcher.Constraint("Vertical", 34))
sketch1.addConstraint(Sketcher.Constraint("Horizontal", 36))
sketch1.addConstraint(Sketcher.Constraint("Vertical", 38))
sketch1.addConstraint(Sketcher.Constraint("Horizontal", 40))
sketch1.addConstraint(Sketcher.Constraint("Vertical", 42))
sketch1.addConstraint(Sketcher.Constraint("Horizontal", 44))
sketch1.addConstraint(Sketcher.Constraint("Vertical", 46))
sketch1.addConstraint(Sketcher.Constraint("Horizontal", 50))
sketch1.addConstraint(Sketcher.Constraint("Vertical", 54))
sketch1.addConstraint(Sketcher.Constraint("Horizontal", 56))
sketch1.addConstraint(Sketcher.Constraint("Vertical", 58))
sketch1.addConstraint(Sketcher.Constraint("Horizontal", 60))
sketch1.addConstraint(Sketcher.Constraint("Vertical", 62))
sketch1.addConstraint(Sketcher.Constraint("Horizontal", 64))
sketch1.addConstraint(Sketcher.Constraint("Vertical", 66))
sketch1.addConstraint(Sketcher.Constraint("Vertical", 72))
sketch1.addConstraint(Sketcher.Constraint("Horizontal", 76))
sketch1.addConstraint(Sketcher.Constraint("Vertical", 78))
sketch1.addConstraint(Sketcher.Constraint("Horizontal", 80))
sketch1.addConstraint(Sketcher.Constraint("Vertical", 82))
sketch1.addConstraint(Sketcher.Constraint("Horizontal", 84))
sketch1.addConstraint(Sketcher.Constraint("Vertical", 86))
sketch1.addConstraint(Sketcher.Constraint("Coincident", 88, 3, -1, 1))
sketch1.addConstraint(Sketcher.Constraint("Equal", 5, 7))
sketch1.addConstraint(Sketcher.Constraint("Equal", 3, 9))
sketch1.addConstraint(Sketcher.Constraint("Equal", 1, 11))
sketch1.addConstraint(Sketcher.Constraint("Equal", 11, 13))
sketch1.addConstraint(Sketcher.Constraint("Equal", 13, 15))
sketch1.addConstraint(Sketcher.Constraint("Equal", 15, 19))
sketch1.addConstraint(Sketcher.Constraint("Equal", 19, 21))
sketch1.addConstraint(Sketcher.Constraint("Equal", 21, 23))
sketch1.addConstraint(Sketcher.Constraint("Equal", 9, 25))
sketch1.addConstraint(Sketcher.Constraint("Equal", 27, 29))
sketch1.addConstraint(Sketcher.Constraint("Equal", 25, 31))
sketch1.addConstraint(Sketcher.Constraint("Equal", 23, 33))
sketch1.addConstraint(Sketcher.Constraint("Equal", 33, 35))
sketch1.addConstraint(Sketcher.Constraint("Equal", 35, 37))
sketch1.addConstraint(Sketcher.Constraint("Equal", 17, 39))
sketch1.addConstraint(Sketcher.Constraint("Equal", 37, 41))
sketch1.addConstraint(Sketcher.Constraint("Equal", 41, 43))
sketch1.addConstraint(Sketcher.Constraint("Equal", 43, 45))
sketch1.addConstraint(Sketcher.Constraint("Equal", 31, 47))
sketch1.addConstraint(Sketcher.Constraint("Equal", 7, 49))
sketch1.addConstraint(Sketcher.Constraint("Equal", 49, 51))
sketch1.addConstraint(Sketcher.Constraint("Equal", 47, 53))
sketch1.addConstraint(Sketcher.Constraint("Equal", 45, 55))
sketch1.addConstraint(Sketcher.Constraint("Equal", 55, 57))
sketch1.addConstraint(Sketcher.Constraint("Equal", 57, 59))
sketch1.addConstraint(Sketcher.Constraint("Equal", 39, 61))
sketch1.addConstraint(Sketcher.Constraint("Equal", 59, 63))
sketch1.addConstraint(Sketcher.Constraint("Equal", 63, 65))
sketch1.addConstraint(Sketcher.Constraint("Equal", 65, 67))
sketch1.addConstraint(Sketcher.Constraint("Equal", 53, 69))
sketch1.addConstraint(Sketcher.Constraint("Equal", 29, 71))
sketch1.addConstraint(Sketcher.Constraint("Equal", 71, 73))
sketch1.addConstraint(Sketcher.Constraint("Equal", 69, 75))
sketch1.addConstraint(Sketcher.Constraint("Equal", 67, 77))
sketch1.addConstraint(Sketcher.Constraint("Equal", 77, 79))
sketch1.addConstraint(Sketcher.Constraint("Equal", 79, 81))
sketch1.addConstraint(Sketcher.Constraint("Equal", 61, 83))
sketch1.addConstraint(Sketcher.Constraint("Equal", 81, 85))
sketch1.addConstraint(Sketcher.Constraint("Equal", 85, 87))
sketch1.addConstraint(Sketcher.Constraint("Symmetric", 1, 3, 45, 3, -1, 1))
sketch1.addConstraint(Sketcher.Constraint("Symmetric", 5, 3, 49, 3, -1, 1))
sketch1.addConstraint(Sketcher.Constraint("Symmetric", 9, 3, 53, 3, -1, 1))
sketch1.addConstraint(Sketcher.Constraint("Symmetric", 13, 3, 57, 3, -1, 1))
sketch1.addConstraint(Sketcher.Constraint("Symmetric", 17, 3, 61, 3, -1, 1))
sketch1.addConstraint(Sketcher.Constraint("Symmetric", 27, 3, 71, 3, -1, 1))
sketch1.addConstraint(Sketcher.Constraint("Symmetric", 31, 3, 75, 3, -1, 1))
sketch1.addConstraint(Sketcher.Constraint("Symmetric", 41, 3, 85, 3, -1, 1))
sketch1.addConstraint(Sketcher.Constraint("Symmetric", 3, 3, 9, 3, -2))
sketch1.addConstraint(Sketcher.Constraint("Symmetric", 43, 3, 57, 3, -2))
sketch1.addConstraint(Sketcher.Constraint("Symmetric", 39, 3, 61, 3, -2))
sketch1.addConstraint(Sketcher.Constraint("Symmetric", 23, 3, 77, 3, -2))
sketch1.addConstraint(Sketcher.Constraint("Symmetric", 48, 2, 51, 1, -2))
sketch1.addConstraint(Sketcher.Constraint("Symmetric", 29, 1, 70, 2, -2))
sketch1.addConstraint(Sketcher.Constraint("Symmetric", 26, 2, 73, 1, -2))
sketch1.addConstraint(Sketcher.Constraint("Symmetric", 21, 3, 35, 3, -1))
sketch1.addConstraint(Sketcher.Constraint("Perpendicular", 4, 8))
sketch1.addConstraint(Sketcher.Constraint("Parallel", 8, 26))
sketch1.addConstraint(Sketcher.Constraint("Perpendicular", 26, 30))
sketch1.addConstraint(Sketcher.Constraint("Horizontal", 78, 2, 81, 2))
sketch1.addConstraint(Sketcher.Constraint("Vertical", 63, 2, 80, 2))
sketch1.addConstraint(Sketcher.Constraint("Vertical", 62, 2, 81, 2))
sketch1.addConstraint(Sketcher.Constraint("Equal", 60, 18))
sketch1.addConstraint(Sketcher.Constraint("Diameter", 88, 6.8))
sketch1.addConstraint(Sketcher.Constraint("Angle", 68, Q("-2 deg")))
sketch1.addConstraint(Sketcher.Constraint("Radius", 1, 1.57))
sketch1.addConstraint(Sketcher.Constraint("Radius", 3, 0.76))
sketch1.addConstraint(Sketcher.Constraint("Radius", 17, 3.17))
sketch1.addConstraint(Sketcher.Constraint("Radius", 27, 4.75))
sketch1.addConstraint(Sketcher.Constraint("DistanceX", 16, 1, 16, 2, 11.2))
sketch1.addConstraint(Sketcher.Constraint("DistanceY", 15, 2, -1, 1, 20.0))
sketch1.addConstraint(Sketcher.Constraint("DistanceX", -1, 1, 17, 2, 20.0))
sketch1.addConstraint(Sketcher.Constraint("DistanceX", 64, 1, 64, 2, 1.18))
sketch1.addConstraint(Sketcher.Constraint("DistanceX", 0, 2, 0, 1, 3.085))
sketch1.addConstraint(Sketcher.Constraint("Radius", 5, 4.864551))
sketch1.addConstraint(Sketcher.Constraint("DistanceY", 22, 2, 22, 1, 3.085399))
sketch1.addConstraint(Sketcher.Constraint("DistanceX", -1, 1, 27, 3, 12.435))
sketch1.addConstraint(Sketcher.Constraint("DistanceY", 5, 1, -1, 1, 7.685))
sketch1.addConstraint(Sketcher.Constraint("DistanceY", -1, 1, 68, 2, 10.033001))
sketch1.addConstraint(Sketcher.Constraint("DistanceX", 6, 1, 6, 2, 5.554671))
sketch1.addConstraint(Sketcher.Constraint("DistanceX", 24, 2, 24, 1, 0.489942))
sketch1.addConstraint(Sketcher.Constraint("DistanceY", 2, 1, 2, 2, 0.462111))
sketch1.addConstraint(Sketcher.Constraint("DistanceY", 28, 1, 28, 2, 5.001569))
sketch1.addConstraint(Sketcher.Constraint("DistanceY", 62, 2, 62, 1, 11.257021))
sketch1.addConstraint(Sketcher.Constraint("DistanceY", 78, 1, 78, 2, 2.95748))
sketch1.addConstraint(Sketcher.Constraint("DistanceY", 82, 2, 82, 1, 11.260449))
sketch1.addConstraint(Sketcher.Constraint("DistanceX", 68, 2, -1, 1, 13.719899))
sketch1.addConstraint(Sketcher.Constraint("DistanceX", 20, 2, 20, 1, 1.180004))
sketch1.addConstraint(Sketcher.Constraint("DistanceX", 80, 2, 80, 1, 1.181454))
sketch1.addConstraint(Sketcher.Constraint("DistanceX", 84, 1, 84, 2, 11.044615))
sketch1.addConstraint(Sketcher.Constraint("DistanceX", -1, 1, 25, 3, 13.811732))
pad1 = doc.addObject("PartDesign::Pad", "Pad")
body.addObject(pad1)
pad1.Profile = sketch1
pad1.Length = 1500

doc.recompute()
